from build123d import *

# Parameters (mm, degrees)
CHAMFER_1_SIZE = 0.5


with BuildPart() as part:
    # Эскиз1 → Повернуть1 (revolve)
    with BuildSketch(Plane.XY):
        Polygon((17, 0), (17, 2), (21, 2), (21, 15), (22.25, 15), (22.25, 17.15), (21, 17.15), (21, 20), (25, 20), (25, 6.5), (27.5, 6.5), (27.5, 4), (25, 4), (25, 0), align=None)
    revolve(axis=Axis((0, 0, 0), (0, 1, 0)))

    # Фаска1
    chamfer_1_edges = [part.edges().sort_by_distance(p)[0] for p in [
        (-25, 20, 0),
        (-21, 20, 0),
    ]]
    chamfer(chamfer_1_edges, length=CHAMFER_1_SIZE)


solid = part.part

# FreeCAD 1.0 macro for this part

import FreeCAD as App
import Part
import Sketcher


def edges_at(feature, points):
    """Names of the edges that pass closest to the given points."""
    edges = feature.Shape.Edges
    near = lambda p: min(range(len(edges)), key=lambda i: edges[i].distToShape(Part.Vertex(*p))[0])
    return sorted({f"Edge{near(p) + 1}" for p in points})


def add_polygon(sketch, points):
    """Adds a closed chain of lines whose ends are joined by coincident constraints."""
    first, n = sketch.GeometryCount, len(points)
    for a, b in zip(points, points[1:] + points[:1]):
        sketch.addGeometry(Part.LineSegment(App.Vector(*a, 0), App.Vector(*b, 0)), False)
    for i in range(n):
        sketch.addConstraint(Sketcher.Constraint("Coincident", first + i, 2, first + (i + 1) % n, 1))

doc = App.newDocument("Part")
params = doc.addObject("Spreadsheet::Sheet", "Params")
for row, (alias, value) in enumerate([
    ("sketch1_width", "8 mm"),
    ("sketch1_height", "2 mm"),
    ("sketch1_height2", "13 mm"),
    ("sketch1_width2", "2.5 mm"),
    ("sketch1_height3", "13.5 mm"),
    ("revolution_angle", "360 deg"),
    ("chamfer_size", "0.5 mm"),
], start=1):
    params.set(f"A{row}", alias)
    params.set(f"B{row}", "=" + value)
    params.setAlias(f"B{row}", alias)

body = doc.addObject("PartDesign::Body", "Body")

# Sketch on XY plane
sketch1 = body.newObject("Sketcher::SketchObject", "Sketch")
sketch1.AttachmentSupport = (doc.getObject("XY_Plane"), [""])
sketch1.MapMode = "FlatFace"
add_polygon(sketch1, [(17, 2), (17, 0), (25, 0), (25, 4), (27.5, 4), (27.5, 6.5), (25, 6.5), (25, 20), (21, 20), (21, 17.15), (22.25, 17.15), (22.25, 15), (21, 15), (21, 2)])  # lines 0-13
sketch1.addConstraint([
    Sketcher.Constraint("Vertical", 0),
    Sketcher.Constraint("Horizontal", 1),
    Sketcher.Constraint("Vertical", 2),
    Sketcher.Constraint("Horizontal", 3),
    Sketcher.Constraint("Vertical", 4),
    Sketcher.Constraint("Horizontal", 5),
    Sketcher.Constraint("Vertical", 6),
    Sketcher.Constraint("Horizontal", 7),
    Sketcher.Constraint("Vertical", 8),
    Sketcher.Constraint("Horizontal", 9),
    Sketcher.Constraint("Vertical", 10),
    Sketcher.Constraint("Horizontal", 11),
    Sketcher.Constraint("Vertical", 12),
    Sketcher.Constraint("Horizontal", 13),
    Sketcher.Constraint("PointOnObject", 0, 2, -1),
    Sketcher.Constraint("Vertical", 2, 2, 5, 2),
    Sketcher.Constraint("Vertical", 8, 2, 11, 2),
    Sketcher.Constraint("Equal", 7, 13),
    Sketcher.Constraint("Equal", 13, 2),
    Sketcher.Constraint("Equal", 5, 4),
    Sketcher.Constraint("DistanceX", 1, 1, 1, 2, 8.0),
    Sketcher.Constraint("DistanceY", 0, 2, 0, 1, 2.0),
    Sketcher.Constraint("DistanceY", 12, 2, 12, 1, 13.0),
    Sketcher.Constraint("DistanceX", 3, 1, 3, 2, 2.5),
    Sketcher.Constraint("DistanceY", 6, 1, 6, 2, 13.5),
    Sketcher.Constraint("DistanceX", -1, 1, 0, 2, 17.0),
    Sketcher.Constraint("DistanceX", 9, 1, 9, 2, 1.25),
    Sketcher.Constraint("DistanceY", 8, 2, 8, 1, 2.85),
])
sketch1.setExpression("Constraints[34]", "Params.sketch1_width")
sketch1.setExpression("Constraints[35]", "Params.sketch1_height")
sketch1.setExpression("Constraints[36]", "Params.sketch1_height2")
sketch1.setExpression("Constraints[37]", "Params.sketch1_width2")
sketch1.setExpression("Constraints[38]", "Params.sketch1_height3")
revolution = body.newObject("PartDesign::Revolution", "Revolution")
revolution.Profile = sketch1
revolution.ReferenceAxis = (sketch1, ["V_Axis"])
revolution.setExpression("Angle", "Params.revolution_angle")
doc.recompute()

chamfer = body.newObject("PartDesign::Chamfer", "Chamfer")
chamfer.Base = (revolution, edges_at(revolution, [(-25, 20, 0), (-21, 20, 0)]))
chamfer.setExpression("Size", "Params.chamfer_size")

doc.recompute()
